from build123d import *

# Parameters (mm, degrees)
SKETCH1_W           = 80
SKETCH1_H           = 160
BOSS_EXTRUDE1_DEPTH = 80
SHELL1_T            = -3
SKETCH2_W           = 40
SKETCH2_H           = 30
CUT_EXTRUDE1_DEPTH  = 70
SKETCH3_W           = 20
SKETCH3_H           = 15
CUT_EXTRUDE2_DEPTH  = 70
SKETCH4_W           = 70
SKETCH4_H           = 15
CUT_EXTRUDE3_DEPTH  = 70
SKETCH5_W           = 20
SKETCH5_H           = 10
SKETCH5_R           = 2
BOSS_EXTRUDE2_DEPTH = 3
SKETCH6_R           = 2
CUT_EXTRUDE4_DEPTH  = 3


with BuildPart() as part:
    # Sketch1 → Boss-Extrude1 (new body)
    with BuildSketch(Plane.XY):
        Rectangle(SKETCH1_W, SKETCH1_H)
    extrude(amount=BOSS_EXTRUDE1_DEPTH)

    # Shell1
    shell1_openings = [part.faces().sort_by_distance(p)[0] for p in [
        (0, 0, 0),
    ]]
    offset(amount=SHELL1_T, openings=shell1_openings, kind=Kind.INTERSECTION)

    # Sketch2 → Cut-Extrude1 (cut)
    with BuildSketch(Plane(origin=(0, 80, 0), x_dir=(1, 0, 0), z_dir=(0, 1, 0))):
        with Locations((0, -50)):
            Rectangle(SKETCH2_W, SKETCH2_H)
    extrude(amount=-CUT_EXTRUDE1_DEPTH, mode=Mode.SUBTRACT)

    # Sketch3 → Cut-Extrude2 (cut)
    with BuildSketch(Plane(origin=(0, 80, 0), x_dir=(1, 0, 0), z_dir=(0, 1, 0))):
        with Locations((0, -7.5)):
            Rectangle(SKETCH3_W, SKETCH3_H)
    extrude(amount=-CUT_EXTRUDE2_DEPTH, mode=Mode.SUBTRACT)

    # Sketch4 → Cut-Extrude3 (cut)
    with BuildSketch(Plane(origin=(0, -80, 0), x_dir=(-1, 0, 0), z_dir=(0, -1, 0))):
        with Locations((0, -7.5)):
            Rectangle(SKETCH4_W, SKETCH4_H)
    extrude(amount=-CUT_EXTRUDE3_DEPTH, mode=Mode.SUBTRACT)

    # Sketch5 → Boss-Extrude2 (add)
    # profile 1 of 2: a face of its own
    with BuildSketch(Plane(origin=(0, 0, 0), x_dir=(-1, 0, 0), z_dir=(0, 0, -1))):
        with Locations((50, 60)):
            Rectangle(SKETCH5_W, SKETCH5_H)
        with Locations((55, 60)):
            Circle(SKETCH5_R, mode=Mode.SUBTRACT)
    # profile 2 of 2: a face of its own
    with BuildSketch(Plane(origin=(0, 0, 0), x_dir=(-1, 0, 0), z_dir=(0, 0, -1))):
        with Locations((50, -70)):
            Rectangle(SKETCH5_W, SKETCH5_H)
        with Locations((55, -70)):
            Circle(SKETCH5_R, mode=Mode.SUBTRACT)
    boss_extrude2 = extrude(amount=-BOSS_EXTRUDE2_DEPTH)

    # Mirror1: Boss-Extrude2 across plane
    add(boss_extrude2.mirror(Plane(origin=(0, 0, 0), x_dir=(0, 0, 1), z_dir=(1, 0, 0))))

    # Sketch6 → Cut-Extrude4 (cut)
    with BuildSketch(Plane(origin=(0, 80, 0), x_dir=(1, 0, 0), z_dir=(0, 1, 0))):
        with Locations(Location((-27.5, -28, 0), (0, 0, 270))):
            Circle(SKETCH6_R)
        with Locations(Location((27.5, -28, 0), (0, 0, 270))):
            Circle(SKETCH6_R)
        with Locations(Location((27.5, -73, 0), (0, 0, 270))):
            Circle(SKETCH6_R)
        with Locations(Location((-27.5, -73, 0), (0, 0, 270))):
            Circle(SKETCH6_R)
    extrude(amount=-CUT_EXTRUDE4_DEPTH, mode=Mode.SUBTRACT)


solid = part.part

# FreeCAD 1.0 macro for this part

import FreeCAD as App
import Part
import Sketcher
Q = App.Units.Quantity


def faces_at(feature, points):
    """Names of the faces that lie closest to the given points."""
    faces = feature.Shape.Faces
    near = lambda p: min(range(len(faces)), key=lambda i: faces[i].distToShape(Part.Vertex(*p))[0])
    return sorted({f"Face{near(p) + 1}" for p in points})


def add_polygon(sketch, points):
    """Adds a closed chain of lines whose ends are joined by coincident constraints."""
    first, n = sketch.GeometryCount, len(points)
    for a, b in zip(points, points[1:] + points[:1]):
        sketch.addGeometry(Part.LineSegment(App.Vector(*a, 0), App.Vector(*b, 0)), False)
    for i in range(n):
        sketch.addConstraint(Sketcher.Constraint("Coincident", first + i, 2, first + (i + 1) % n, 1))

doc = App.newDocument("Part")
body = doc.addObject("PartDesign::Body", "Body")

sketch1 = body.newObject("Sketcher::SketchObject", "Sketch")
sketch1.AttachmentSupport = (doc.getObject("XY_Plane"), [""])
sketch1.MapMode = "FlatFace"
add_polygon(sketch1, [(-40, 80), (-40, -80), (40, -80), (40, 80)])
sketch1.addConstraint([
    Sketcher.Constraint("Vertical", 0),
    Sketcher.Constraint("Horizontal", 1),
    Sketcher.Constraint("Vertical", 2),
    Sketcher.Constraint("Horizontal", 3),
    Sketcher.Constraint("Symmetric", 0, 2, 2, 2, -1, 1),
    Sketcher.Constraint("DistanceX", 1, 1, 1, 2, Q("80 mm")),
    Sketcher.Constraint("DistanceY", 0, 2, 0, 1, Q("160 mm")),
])
pad1 = body.newObject("PartDesign::Pad", "Pad")
pad1.Profile = sketch1
pad1.Length = 80
doc.recompute()

thickness = body.newObject("PartDesign::Thickness", "Thickness")
thickness.Base = (pad1, faces_at(pad1, [(0, 0, 0)]))
thickness.Value = 3
thickness.Reversed = True
thickness.Join = "Intersection"

sketch2 = body.newObject("Sketcher::SketchObject", "Sketch001")
sketch2.AttachmentSupport = (doc.getObject("XZ_Plane"), [""])
sketch2.MapMode = "FlatFace"
sketch2.AttachmentOffset = App.Placement(App.Vector(0, 0, -80), App.Rotation())
add_polygon(sketch2, [(-20, 35), (-20, 65), (20, 65), (20, 35)])
sketch2.addConstraint([
    Sketcher.Constraint("Vertical", 0),
    Sketcher.Constraint("Horizontal", 1),
    Sketcher.Constraint("Vertical", 2),
    Sketcher.Constraint("Horizontal", 3),
    Sketcher.Constraint("DistanceX", 1, 1, 1, 2, Q("40 mm")),
    Sketcher.Constraint("DistanceY", 0, 1, 0, 2, Q("30 mm")),
    Sketcher.Constraint("DistanceX", 0, 2, -1, 1, Q("20 mm")),
    Sketcher.Constraint("DistanceY", -1, 1, 0, 2, Q("65 mm")),
])
pocket1 = body.newObject("PartDesign::Pocket", "Pocket")
pocket1.Profile = sketch2
pocket1.Length = 70
pocket1.Reversed = True

sketch3 = body.newObject("Sketcher::SketchObject", "Sketch002")
sketch3.AttachmentSupport = (doc.getObject("XZ_Plane"), [""])
sketch3.MapMode = "FlatFace"
sketch3.AttachmentOffset = App.Placement(App.Vector(0, 0, -80), App.Rotation())
add_polygon(sketch3, [(-10, 0), (-10, 15), (10, 15), (10, 0)])
sketch3.addConstraint([
    Sketcher.Constraint("Vertical", 0),
    Sketcher.Constraint("Horizontal", 1),
    Sketcher.Constraint("Vertical", 2),
    Sketcher.Constraint("Horizontal", 3),
    Sketcher.Constraint("Symmetric", 2, 2, 3, 2, -1, 1),
    Sketcher.Constraint("DistanceX", 1, 1, 1, 2, Q("20 mm")),
    Sketcher.Constraint("DistanceY", 0, 1, 0, 2, Q("15 mm")),
])
pocket2 = body.newObject("PartDesign::Pocket", "Pocket001")
pocket2.Profile = sketch3
pocket2.Length = 70
pocket2.Reversed = True

sketch4 = body.newObject("Sketcher::SketchObject", "Sketch003")
sketch4.AttachmentSupport = (doc.getObject("XZ_Plane"), [""])
sketch4.MapMode = "FlatFace"
sketch4.AttachmentOffset = App.Placement(App.Vector(0, 0, 80), App.Rotation())
add_polygon(sketch4, [(35, 0), (35, 15), (-35, 15), (-35, 0)])
sketch4.addConstraint([
    Sketcher.Constraint("Vertical", 0),
    Sketcher.Constraint("Horizontal", 1),
    Sketcher.Constraint("Vertical", 2),
    Sketcher.Constraint("Horizontal", 3),
    Sketcher.Constraint("Symmetric", 2, 2, 3, 2, -1, 1),
    Sketcher.Constraint("DistanceX", 1, 2, 1, 1, Q("70 mm")),
    Sketcher.Constraint("DistanceY", 0, 1, 0, 2, Q("15 mm")),
])
pocket3 = body.newObject("PartDesign::Pocket", "Pocket002")
pocket3.Profile = sketch4
pocket3.Length = 70

sketch5 = body.newObject("Sketcher::SketchObject", "Sketch004")
sketch5.AttachmentSupport = (doc.getObject("XY_Plane"), [""])
sketch5.MapMode = "FlatFace"
add_polygon(sketch5, [(-40, 65), (-40, 55), (-60, 55), (-60, 65)])
sketch5.addGeometry(Part.Circle(App.Vector(-55, 60, 0), App.Vector(0, 0, 1), 2), False)
add_polygon(sketch5, [(-40, -65), (-40, -75), (-60, -75), (-60, -65)])
sketch5.addGeometry(Part.Circle(App.Vector(-55, -70, 0), App.Vector(0, 0, 1), 2), False)
sketch5.addConstraint([
    Sketcher.Constraint("Vertical", 0),
    Sketcher.Constraint("Horizontal", 1),
    Sketcher.Constraint("Vertical", 2),
    Sketcher.Constraint("Horizontal", 3),
    Sketcher.Constraint("Vertical", 5),
    Sketcher.Constraint("Horizontal", 6),
    Sketcher.Constraint("Vertical", 7),
    Sketcher.Constraint("Horizontal", 8),
    Sketcher.Constraint("Equal", 4, 9),
    Sketcher.Constraint("Symmetric", 2, 2, 7, 2, -1),
    Sketcher.Constraint("Vertical", 4, 3, 9, 3),
    Sketcher.Constraint("Vertical", 3, 2, 5, 2),
    Sketcher.Constraint("Equal", 2, 5),
    Sketcher.Constraint("Diameter", 4, Q("4 mm")),
    Sketcher.Constraint("DistanceX", 1, 2, 1, 1, Q("20 mm")),
    Sketcher.Constraint("DistanceY", 0, 2, 0, 1, Q("10 mm")),
    Sketcher.Constraint("DistanceX", 4, 3, -1, 1, Q("55 mm")),
    Sketcher.Constraint("DistanceY", -1, 1, 4, 3, Q("60 mm")),
    Sketcher.Constraint("DistanceY", 9, 3, -1, 1, Q("70 mm")),
    Sketcher.Constraint("DistanceX", 0, 2, -1, 1, Q("40 mm")),
    Sketcher.Constraint("DistanceY", -1, 1, 0, 2, Q("55 mm")),
])
pad2 = body.newObject("PartDesign::Pad", "Pad001")
pad2.Profile = sketch5
pad2.Length = 3
doc.recompute()

mirrored = body.newObject("PartDesign::Mirrored", "Mirrored")
mirrored.Originals = [pad2]
mirrored.MirrorPlane = (doc.getObject("YZ_Plane"), [""])
body.Tip = mirrored

sketch6 = body.newObject("Sketcher::SketchObject", "Sketch005")
sketch6.AttachmentSupport = (doc.getObject("XZ_Plane"), [""])
sketch6.MapMode = "FlatFace"
sketch6.AttachmentOffset = App.Placement(App.Vector(0, 0, -80), App.Rotation())
sketch6.addGeometry([
    Part.Circle(App.Vector(-27.5, 28, 0), App.Vector(0, 0, 1), 2),
    Part.Circle(App.Vector(27.5, 28, 0), App.Vector(0, 0, 1), 2),
    Part.Circle(App.Vector(27.5, 73, 0), App.Vector(0, 0, 1), 2),
    Part.Circle(App.Vector(-27.5, 73, 0), App.Vector(0, 0, 1), 2),
], False)
sketch6.addConstraint([
    Sketcher.Constraint("Equal", 0, 1),
    Sketcher.Constraint("Equal", 1, 2),
    Sketcher.Constraint("Equal", 2, 3),
    Sketcher.Constraint("Symmetric", 0, 3, 1, 3, -2),
    Sketcher.Constraint("Symmetric", 2, 3, 3, 3, -2),
    Sketcher.Constraint("Vertical", 1, 3, 2, 3),
    Sketcher.Constraint("Diameter", 0, Q("4 mm")),
    Sketcher.Constraint("DistanceY", -1, 1, 0, 3, Q("28 mm")),
    Sketcher.Constraint("DistanceY", -1, 1, 2, 3, Q("73 mm")),
    Sketcher.Constraint("DistanceX", 0, 3, 1, 3, Q("55 mm")),
])
pocket4 = body.newObject("PartDesign::Pocket", "Pocket003")
pocket4.Profile = sketch6
pocket4.Length = 3
pocket4.Reversed = True

doc.recompute()
